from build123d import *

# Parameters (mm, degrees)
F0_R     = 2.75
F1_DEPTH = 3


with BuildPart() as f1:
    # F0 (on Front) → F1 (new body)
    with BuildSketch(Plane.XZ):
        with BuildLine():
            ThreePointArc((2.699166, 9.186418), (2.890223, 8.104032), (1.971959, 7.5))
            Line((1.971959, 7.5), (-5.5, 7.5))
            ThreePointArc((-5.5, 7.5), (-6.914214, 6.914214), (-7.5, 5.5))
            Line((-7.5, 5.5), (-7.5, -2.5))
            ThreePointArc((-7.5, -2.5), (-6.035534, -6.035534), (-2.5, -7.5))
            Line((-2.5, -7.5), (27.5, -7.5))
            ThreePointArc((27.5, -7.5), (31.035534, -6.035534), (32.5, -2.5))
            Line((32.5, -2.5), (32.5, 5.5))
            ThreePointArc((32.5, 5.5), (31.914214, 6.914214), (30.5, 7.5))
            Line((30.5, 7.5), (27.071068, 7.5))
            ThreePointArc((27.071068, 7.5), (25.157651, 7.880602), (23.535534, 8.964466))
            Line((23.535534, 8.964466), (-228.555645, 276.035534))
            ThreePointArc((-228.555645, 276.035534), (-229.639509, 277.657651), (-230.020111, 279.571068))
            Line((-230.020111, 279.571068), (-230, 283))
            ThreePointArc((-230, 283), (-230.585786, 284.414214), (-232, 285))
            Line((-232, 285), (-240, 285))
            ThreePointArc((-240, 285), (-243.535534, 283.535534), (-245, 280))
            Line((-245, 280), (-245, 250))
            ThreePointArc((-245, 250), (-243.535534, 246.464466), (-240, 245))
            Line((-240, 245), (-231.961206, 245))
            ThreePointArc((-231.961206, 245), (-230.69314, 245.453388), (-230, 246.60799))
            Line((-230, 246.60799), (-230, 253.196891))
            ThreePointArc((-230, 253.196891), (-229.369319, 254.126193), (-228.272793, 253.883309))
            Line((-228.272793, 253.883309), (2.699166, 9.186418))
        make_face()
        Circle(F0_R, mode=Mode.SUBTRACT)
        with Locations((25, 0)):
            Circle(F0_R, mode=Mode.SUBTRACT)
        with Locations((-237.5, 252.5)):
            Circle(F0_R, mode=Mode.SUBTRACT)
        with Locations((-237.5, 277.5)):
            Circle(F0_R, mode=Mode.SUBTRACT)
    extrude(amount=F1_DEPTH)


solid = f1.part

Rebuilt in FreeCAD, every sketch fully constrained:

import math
import FreeCAD as App
import Part
import Sketcher
Q = App.Units.Quantity

doc = App.newDocument("Part")
params = doc.addObject("Spreadsheet::Sheet", "Params")
for row, (alias, value) in enumerate([
    ("sketch1_radius", "1 mm"),
    ("sketch1_radius2", "1.999999 mm"),
    ("sketch1_radius3", "5 mm"),
    ("sketch1_diameter", "5.5 mm"),
    ("sketch1_width", "30 mm"),
    ("pad1_length", "3 mm"),
], start=1):
    params.set(f"A{row}", alias)
    params.set(f"B{row}", "=" + value)
    params.setAlias(f"B{row}", alias)

body = doc.addObject("PartDesign::Body", "Body")

# Sketch on XZ plane
sketch1 = body.newObject("Sketcher::SketchObject", "Sketch")
sketch1.AttachmentSupport = (doc.getObject("XZ_Plane"), [""])
sketch1.MapMode = "FlatFace"
sketch1.addGeometry(Part.ArcOfCircle(Part.Circle(App.Vector(1.971959, 8.5, 0), App.Vector(0, 0, 1), 1), math.radians(-89.99998), math.radians(43.347219)), False)
sketch1.addGeometry(Part.LineSegment(App.Vector(1.971959, 7.5, 0), App.Vector(-5.5, 7.5, 0)), False)
sketch1.addGeometry(Part.ArcOfCircle(Part.Circle(App.Vector(-5.500001, 5.500001, 0), App.Vector(0, 0, 1), 1.999999), math.radians(89.999957), math.radians(180.000043)), False)
sketch1.addGeometry(Part.LineSegment(App.Vector(-7.5, 5.5, 0), App.Vector(-7.5, -2.5, 0)), False)
sketch1.addGeometry(Part.ArcOfCircle(Part.Circle(App.Vector(-2.5, -2.5, 0), App.Vector(0, 0, 1), 5), math.radians(179.999996), math.radians(270.000004)), False)
sketch1.addGeometry(Part.LineSegment(App.Vector(-2.5, -7.5, 0), App.Vector(27.5, -7.5, 0)), False)
sketch1.addGeometry(Part.ArcOfCircle(Part.Circle(App.Vector(27.5, -2.5, 0), App.Vector(0, 0, 1), 5), math.radians(-90.000004), math.radians(0.000004)), False)
sketch1.addGeometry(Part.LineSegment(App.Vector(32.5, -2.5, 0), App.Vector(32.5, 5.5, 0)), False)
sketch1.addGeometry(Part.ArcOfCircle(Part.Circle(App.Vector(30.500001, 5.500001, 0), App.Vector(0, 0, 1), 1.999999), math.radians(-0.000043), math.radians(90.000043)), False)
sketch1.addGeometry(Part.LineSegment(App.Vector(30.5, 7.5, 0), App.Vector(27.071068, 7.5, 0)), False)
sketch1.addGeometry(Part.ArcOfCircle(Part.Circle(App.Vector(27.071067, 12.499998, 0), App.Vector(0, 0, 1), 4.999998), math.radians(-135.000009), math.radians(-89.999988)), False)
sketch1.addGeometry(Part.LineSegment(App.Vector(23.535534, 8.964466, 0), App.Vector(-228.555645, 276.035534, 0)), False)
sketch1.addGeometry(Part.ArcOfCircle(Part.Circle(App.Vector(-225.020113, 279.571067, 0), App.Vector(0, 0, 1), 4.999998), math.radians(179.999988), math.radians(225.000009)), False)
sketch1.addGeometry(Part.LineSegment(App.Vector(-230.020111, 279.571068, 0), App.Vector(-230, 283, 0)), False)
sketch1.addGeometry(Part.ArcOfCircle(Part.Circle(App.Vector(-231.999999, 283.000001, 0), App.Vector(0, 0, 1), 1.999999), math.radians(-0.000043), math.radians(90.000043)), False)
sketch1.addGeometry(Part.LineSegment(App.Vector(-232, 285, 0), App.Vector(-240, 285, 0)), False)
sketch1.addGeometry(Part.ArcOfCircle(Part.Circle(App.Vector(-240, 280, 0), App.Vector(0, 0, 1), 5), math.radians(89.999996), math.radians(180.000004)), False)
sketch1.addGeometry(Part.LineSegment(App.Vector(-245, 280, 0), App.Vector(-245, 250, 0)), False)
sketch1.addGeometry(Part.ArcOfCircle(Part.Circle(App.Vector(-240, 250, 0), App.Vector(0, 0, 1), 5), math.radians(179.999996), math.radians(270.000004)), False)
sketch1.addGeometry(Part.LineSegment(App.Vector(-240, 245, 0), App.Vector(-231.961206, 245, 0)), False)
sketch1.addGeometry(Part.ArcOfCircle(Part.Circle(App.Vector(-231.961206, 247, 0), App.Vector(0, 0, 1), 2), math.radians(-89.999997), math.radians(-11.303448)), False)
sketch1.addGeometry(Part.LineSegment(App.Vector(-230, 246.60799, 0), App.Vector(-230, 253.196891, 0)), False)
sketch1.addGeometry(Part.ArcOfCircle(Part.Circle(App.Vector(-229, 253.19689, 0), App.Vector(0, 0, 1), 1), math.radians(43.347281), math.radians(179.999951)), False)
sketch1.addGeometry(Part.LineSegment(App.Vector(-228.272793, 253.883309, 0), App.Vector(2.699166, 9.186418, 0)), False)
sketch1.addGeometry(Part.Circle(App.Vector(0, 0, 0), App.Vector(0, 0, 1), 2.75), False)
sketch1.addGeometry(Part.Circle(App.Vector(25, 0, 0), App.Vector(0, 0, 1), 2.75), False)
sketch1.addGeometry(Part.Circle(App.Vector(-237.5, 252.5, 0), App.Vector(0, 0, 1), 2.75), False)
sketch1.addGeometry(Part.Circle(App.Vector(-237.5, 277.5, 0), App.Vector(0, 0, 1), 2.75), False)
sketch1.addConstraint(Sketcher.Constraint("Tangent", 0, 1, 1, 1))
sketch1.addConstraint(Sketcher.Constraint("Tangent", 1, 2, 2, 1))
sketch1.addConstraint(Sketcher.Constraint("Tangent", 2, 2, 3, 1))
sketch1.addConstraint(Sketcher.Constraint("Tangent", 3, 2, 4, 1))
sketch1.addConstraint(Sketcher.Constraint("Tangent", 4, 2, 5, 1))
sketch1.addConstraint(Sketcher.Constraint("Tangent", 5, 2, 6, 1))
sketch1.addConstraint(Sketcher.Constraint("Tangent", 6, 2, 7, 1))
sketch1.addConstraint(Sketcher.Constraint("Tangent", 7, 2, 8, 1))
sketch1.addConstraint(Sketcher.Constraint("Tangent", 8, 2, 9, 1))
sketch1.addConstraint(Sketcher.Constraint("Tangent", 9, 2, 10, 2))
sketch1.addConstraint(Sketcher.Constraint("Coincident", 10, 1, 11, 1))
sketch1.addConstraint(Sketcher.Constraint("Coincident", 11, 2, 12, 2))
sketch1.addConstraint(Sketcher.Constraint("Coincident", 12, 1, 13, 1))
sketch1.addConstraint(Sketcher.Constraint("Coincident", 13, 2, 14, 1))
sketch1.addConstraint(Sketcher.Constraint("Tangent", 14, 2, 15, 1))
sketch1.addConstraint(Sketcher.Constraint("Tangent", 15, 2, 16, 1))
sketch1.addConstraint(Sketcher.Constraint("Tangent", 16, 2, 17, 1))
sketch1.addConstraint(Sketcher.Constraint("Tangent", 17, 2, 18, 1))
sketch1.addConstraint(Sketcher.Constraint("Tangent", 18, 2, 19, 1))
sketch1.addConstraint(Sketcher.Constraint("Tangent", 19, 2, 20, 1))
sketch1.addConstraint(Sketcher.Constraint("Coincident", 20, 2, 21, 1))
sketch1.addConstraint(Sketcher.Constraint("Tangent", 21, 2, 22, 2))
sketch1.addConstraint(Sketcher.Constraint("Tangent", 22, 1, 23, 1))
sketch1.addConstraint(Sketcher.Constraint("Tangent", 23, 2, 0, 2))
sketch1.addConstraint(Sketcher.Constraint("Horizontal", 1))
sketch1.addConstraint(Sketcher.Constraint("Vertical", 3))
sketch1.addConstraint(Sketcher.Constraint("Horizontal", 5))
sketch1.addConstraint(Sketcher.Constraint("Vertical", 7))
sketch1.addConstraint(Sketcher.Constraint("Horizontal", 9))
sketch1.addConstraint(Sketcher.Constraint("Horizontal", 15))
sketch1.addConstraint(Sketcher.Constraint("Vertical", 17))
sketch1.addConstraint(Sketcher.Constraint("Horizontal", 19))
sketch1.addConstraint(Sketcher.Constraint("Vertical", 21))
sketch1.addConstraint(Sketcher.Constraint("Coincident", 24, 3, -1, 1))
sketch1.addConstraint(Sketcher.Constraint("Equal", 4, 6))
sketch1.addConstraint(Sketcher.Constraint("Equal", 2, 8))
sketch1.addConstraint(Sketcher.Constraint("Equal", 6, 10))
sketch1.addConstraint(Sketcher.Constraint("Equal", 10, 12))
sketch1.addConstraint(Sketcher.Constraint("Equal", 8, 14))
sketch1.addConstraint(Sketcher.Constraint("Equal", 12, 16))
sketch1.addConstraint(Sketcher.Constraint("Equal", 16, 18))
sketch1.addConstraint(Sketcher.Constraint("Equal", 14, 20))
sketch1.addConstraint(Sketcher.Constraint("Equal", 0, 22))
sketch1.addConstraint(Sketcher.Constraint("Equal", 24, 25))
sketch1.addConstraint(Sketcher.Constraint("Equal", 25, 26))
sketch1.addConstraint(Sketcher.Constraint("Equal", 26, 27))
sketch1.addConstraint(Sketcher.Constraint("PointOnObject", 25, 3, -1))
sketch1.addConstraint(Sketcher.Constraint("Parallel", 11, 23))
sketch1.addConstraint(Sketcher.Constraint("Horizontal", 2, 3, 8, 3))
sketch1.addConstraint(Sketcher.Constraint("Horizontal", 14, 3, 13, 2))
sketch1.addConstraint(Sketcher.Constraint("Vertical", 26, 3, 27, 3))
sketch1.addConstraint(Sketcher.Constraint("Vertical", 13, 2, 20, 2))
sketch1.addConstraint(Sketcher.Constraint("Equal", 15, 3))
sketch1.addConstraint(Sketcher.Constraint("Equal", 5, 17))
sketch1.addConstraint(Sketcher.Constraint("Radius", 0, Q("1 mm")))
sketch1.addConstraint(Sketcher.Constraint("Radius", 2, Q("1.999999 mm")))
sketch1.addConstraint(Sketcher.Constraint("Radius", 4, Q("5 mm")))
sketch1.addConstraint(Sketcher.Constraint("Diameter", 24, Q("5.5 mm")))
sketch1.addConstraint(Sketcher.Constraint("DistanceX", 5, 1, 5, 2, Q("30 mm")))
sketch1.addConstraint(Sketcher.Constraint("DistanceX", 15, 2, 15, 1, Q("8 mm")))
sketch1.addConstraint(Sketcher.Constraint("DistanceX", 14, 3, -1, 1, Q("231.999999 mm")))
sketch1.addConstraint(Sketcher.Constraint("DistanceY", -1, 1, 14, 3, Q("283.000001 mm")))
sketch1.addConstraint(Sketcher.Constraint("DistanceX", -1, 1, 25, 3, Q("25 mm")))
sketch1.addConstraint(Sketcher.Constraint("DistanceY", 26, 3, 27, 3, Q("25 mm")))
sketch1.addConstraint(Sketcher.Constraint("DistanceY", -1, 1, 0, 3, Q("8.5 mm")))
sketch1.addConstraint(Sketcher.Constraint("DistanceX", 2, 3, -1, 1, Q("5.500001 mm")))
sketch1.addConstraint(Sketcher.Constraint("DistanceX", 26, 3, -1, 1, Q("237.5 mm")))
sketch1.addConstraint(Sketcher.Constraint("DistanceY", -1, 1, 26, 3, Q("252.5 mm")))
sketch1.addConstraint(Sketcher.Constraint("DistanceY", 21, 1, 21, 2, Q("6.588901 mm")))
sketch1.addConstraint(Sketcher.Constraint("DistanceX", 1, 2, 1, 1, Q("7.471959 mm")))
sketch1.addConstraint(Sketcher.Constraint("DistanceX", 9, 2, 9, 1, Q("3.428932 mm")))
sketch1.addConstraint(Sketcher.Constraint("Distance", 11, Q("367.25593 mm")))
sketch1.addConstraint(Sketcher.Constraint("Distance", 13, Q("3.428991 mm")))
sketch1.addConstraint(Sketcher.Constraint("DistanceX", 19, 1, 19, 2, Q("8.038794 mm")))
sketch1.addConstraint(Sketcher.Constraint("DistanceX", 12, 1, -1, 1, Q("230.020111 mm")))
sketch1.addConstraint(Sketcher.Constraint("DistanceY", 10, 1, 10, 3, Q("3.535532 mm")))
sketch1.setExpression("Constraints[54]", "Params.sketch1_radius")
sketch1.setExpression("Constraints[55]", "Params.sketch1_radius2")
sketch1.setExpression("Constraints[56]", "Params.sketch1_radius3")
sketch1.setExpression("Constraints[57]", "Params.sketch1_diameter")
sketch1.setExpression("Constraints[58]", "Params.sketch1_width")
pad1 = body.newObject("PartDesign::Pad", "Pad")
pad1.Profile = sketch1
pad1.setExpression("Length", "Params.pad1_length")

doc.recompute()
